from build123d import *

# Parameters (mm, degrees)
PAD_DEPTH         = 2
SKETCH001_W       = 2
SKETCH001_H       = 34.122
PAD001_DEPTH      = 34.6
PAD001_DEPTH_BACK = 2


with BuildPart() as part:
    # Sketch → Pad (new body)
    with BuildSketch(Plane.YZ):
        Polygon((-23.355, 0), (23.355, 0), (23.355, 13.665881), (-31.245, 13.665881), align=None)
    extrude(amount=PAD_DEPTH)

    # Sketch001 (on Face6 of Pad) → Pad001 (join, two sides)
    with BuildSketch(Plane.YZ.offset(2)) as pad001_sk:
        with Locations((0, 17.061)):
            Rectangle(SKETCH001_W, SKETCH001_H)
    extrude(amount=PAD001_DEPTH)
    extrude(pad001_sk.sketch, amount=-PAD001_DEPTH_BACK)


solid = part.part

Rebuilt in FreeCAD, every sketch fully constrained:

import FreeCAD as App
import Part
import Sketcher
Q = App.Units.Quantity


def add_polygon(sketch, points):
    """Adds a closed chain of lines whose ends are joined by coincident constraints."""
    first, n = sketch.GeometryCount, len(points)
    for a, b in zip(points, points[1:] + points[:1]):
        sketch.addGeometry(Part.LineSegment(App.Vector(*a, 0), App.Vector(*b, 0)), False)
    for i in range(n):
        sketch.addConstraint(Sketcher.Constraint("Coincident", first + i, 2, first + (i + 1) % n, 1))

doc = App.newDocument("Part")
body = doc.addObject("PartDesign::Body", "Body")

# Sketch on YZ plane
sketch1 = body.newObject("Sketcher::SketchObject", "Sketch")
sketch1.AttachmentSupport = (doc.getObject("YZ_Plane"), [""])
sketch1.MapMode = "FlatFace"
add_polygon(sketch1, [(-23.355, 0), (23.355, 0), (23.355, 13.665881), (-31.245, 13.665881)])  # lines 0-3
sketch1.addConstraint(Sketcher.Constraint("Horizontal", 0))
sketch1.addConstraint(Sketcher.Constraint("Vertical", 1))
sketch1.addConstraint(Sketcher.Constraint("Horizontal", 2))
sketch1.addConstraint(Sketcher.Constraint("Symmetric", 0, 2, 3, 2, -1, 1))
sketch1.addConstraint(Sketcher.Constraint("Angle", 3, Q("-60 deg")))
sketch1.addConstraint(Sketcher.Constraint("DistanceX", 2, 2, 2, 1, Q("54.6 mm")))
sketch1.addConstraint(Sketcher.Constraint("DistanceX", 0, 1, 0, 2, Q("46.71 mm")))
pad1 = body.newObject("PartDesign::Pad", "Pad")
pad1.Profile = sketch1
pad1.Length = 2

# Sketch on YZ plane
sketch2 = body.newObject("Sketcher::SketchObject", "Sketch001")
sketch2.AttachmentSupport = (doc.getObject("YZ_Plane"), [""])
sketch2.MapMode = "FlatFace"
sketch2.AttachmentOffset = App.Placement(App.Vector(0, 0, 2), App.Rotation())
add_polygon(sketch2, [(-1, 34.122), (-1, 0), (1, 0), (1, 34.122)])  # lines 0-3
sketch2.addConstraint(Sketcher.Constraint("Vertical", 0))
sketch2.addConstraint(Sketcher.Constraint("Horizontal", 1))
sketch2.addConstraint(Sketcher.Constraint("Vertical", 2))
sketch2.addConstraint(Sketcher.Constraint("Horizontal", 3))
sketch2.addConstraint(Sketcher.Constraint("Symmetric", 0, 2, 1, 2, -1, 1))
sketch2.addConstraint(Sketcher.Constraint("DistanceX", 1, 1, 1, 2, Q("2 mm")))
sketch2.addConstraint(Sketcher.Constraint("DistanceY", 0, 2, 0, 1, Q("34.122 mm")))
pad2 = body.newObject("PartDesign::Pad", "Pad001")
pad2.Profile = sketch2
pad2.Type = "TwoLengths"
pad2.Length = 34.6
pad2.Length2 = 2

doc.recompute()
